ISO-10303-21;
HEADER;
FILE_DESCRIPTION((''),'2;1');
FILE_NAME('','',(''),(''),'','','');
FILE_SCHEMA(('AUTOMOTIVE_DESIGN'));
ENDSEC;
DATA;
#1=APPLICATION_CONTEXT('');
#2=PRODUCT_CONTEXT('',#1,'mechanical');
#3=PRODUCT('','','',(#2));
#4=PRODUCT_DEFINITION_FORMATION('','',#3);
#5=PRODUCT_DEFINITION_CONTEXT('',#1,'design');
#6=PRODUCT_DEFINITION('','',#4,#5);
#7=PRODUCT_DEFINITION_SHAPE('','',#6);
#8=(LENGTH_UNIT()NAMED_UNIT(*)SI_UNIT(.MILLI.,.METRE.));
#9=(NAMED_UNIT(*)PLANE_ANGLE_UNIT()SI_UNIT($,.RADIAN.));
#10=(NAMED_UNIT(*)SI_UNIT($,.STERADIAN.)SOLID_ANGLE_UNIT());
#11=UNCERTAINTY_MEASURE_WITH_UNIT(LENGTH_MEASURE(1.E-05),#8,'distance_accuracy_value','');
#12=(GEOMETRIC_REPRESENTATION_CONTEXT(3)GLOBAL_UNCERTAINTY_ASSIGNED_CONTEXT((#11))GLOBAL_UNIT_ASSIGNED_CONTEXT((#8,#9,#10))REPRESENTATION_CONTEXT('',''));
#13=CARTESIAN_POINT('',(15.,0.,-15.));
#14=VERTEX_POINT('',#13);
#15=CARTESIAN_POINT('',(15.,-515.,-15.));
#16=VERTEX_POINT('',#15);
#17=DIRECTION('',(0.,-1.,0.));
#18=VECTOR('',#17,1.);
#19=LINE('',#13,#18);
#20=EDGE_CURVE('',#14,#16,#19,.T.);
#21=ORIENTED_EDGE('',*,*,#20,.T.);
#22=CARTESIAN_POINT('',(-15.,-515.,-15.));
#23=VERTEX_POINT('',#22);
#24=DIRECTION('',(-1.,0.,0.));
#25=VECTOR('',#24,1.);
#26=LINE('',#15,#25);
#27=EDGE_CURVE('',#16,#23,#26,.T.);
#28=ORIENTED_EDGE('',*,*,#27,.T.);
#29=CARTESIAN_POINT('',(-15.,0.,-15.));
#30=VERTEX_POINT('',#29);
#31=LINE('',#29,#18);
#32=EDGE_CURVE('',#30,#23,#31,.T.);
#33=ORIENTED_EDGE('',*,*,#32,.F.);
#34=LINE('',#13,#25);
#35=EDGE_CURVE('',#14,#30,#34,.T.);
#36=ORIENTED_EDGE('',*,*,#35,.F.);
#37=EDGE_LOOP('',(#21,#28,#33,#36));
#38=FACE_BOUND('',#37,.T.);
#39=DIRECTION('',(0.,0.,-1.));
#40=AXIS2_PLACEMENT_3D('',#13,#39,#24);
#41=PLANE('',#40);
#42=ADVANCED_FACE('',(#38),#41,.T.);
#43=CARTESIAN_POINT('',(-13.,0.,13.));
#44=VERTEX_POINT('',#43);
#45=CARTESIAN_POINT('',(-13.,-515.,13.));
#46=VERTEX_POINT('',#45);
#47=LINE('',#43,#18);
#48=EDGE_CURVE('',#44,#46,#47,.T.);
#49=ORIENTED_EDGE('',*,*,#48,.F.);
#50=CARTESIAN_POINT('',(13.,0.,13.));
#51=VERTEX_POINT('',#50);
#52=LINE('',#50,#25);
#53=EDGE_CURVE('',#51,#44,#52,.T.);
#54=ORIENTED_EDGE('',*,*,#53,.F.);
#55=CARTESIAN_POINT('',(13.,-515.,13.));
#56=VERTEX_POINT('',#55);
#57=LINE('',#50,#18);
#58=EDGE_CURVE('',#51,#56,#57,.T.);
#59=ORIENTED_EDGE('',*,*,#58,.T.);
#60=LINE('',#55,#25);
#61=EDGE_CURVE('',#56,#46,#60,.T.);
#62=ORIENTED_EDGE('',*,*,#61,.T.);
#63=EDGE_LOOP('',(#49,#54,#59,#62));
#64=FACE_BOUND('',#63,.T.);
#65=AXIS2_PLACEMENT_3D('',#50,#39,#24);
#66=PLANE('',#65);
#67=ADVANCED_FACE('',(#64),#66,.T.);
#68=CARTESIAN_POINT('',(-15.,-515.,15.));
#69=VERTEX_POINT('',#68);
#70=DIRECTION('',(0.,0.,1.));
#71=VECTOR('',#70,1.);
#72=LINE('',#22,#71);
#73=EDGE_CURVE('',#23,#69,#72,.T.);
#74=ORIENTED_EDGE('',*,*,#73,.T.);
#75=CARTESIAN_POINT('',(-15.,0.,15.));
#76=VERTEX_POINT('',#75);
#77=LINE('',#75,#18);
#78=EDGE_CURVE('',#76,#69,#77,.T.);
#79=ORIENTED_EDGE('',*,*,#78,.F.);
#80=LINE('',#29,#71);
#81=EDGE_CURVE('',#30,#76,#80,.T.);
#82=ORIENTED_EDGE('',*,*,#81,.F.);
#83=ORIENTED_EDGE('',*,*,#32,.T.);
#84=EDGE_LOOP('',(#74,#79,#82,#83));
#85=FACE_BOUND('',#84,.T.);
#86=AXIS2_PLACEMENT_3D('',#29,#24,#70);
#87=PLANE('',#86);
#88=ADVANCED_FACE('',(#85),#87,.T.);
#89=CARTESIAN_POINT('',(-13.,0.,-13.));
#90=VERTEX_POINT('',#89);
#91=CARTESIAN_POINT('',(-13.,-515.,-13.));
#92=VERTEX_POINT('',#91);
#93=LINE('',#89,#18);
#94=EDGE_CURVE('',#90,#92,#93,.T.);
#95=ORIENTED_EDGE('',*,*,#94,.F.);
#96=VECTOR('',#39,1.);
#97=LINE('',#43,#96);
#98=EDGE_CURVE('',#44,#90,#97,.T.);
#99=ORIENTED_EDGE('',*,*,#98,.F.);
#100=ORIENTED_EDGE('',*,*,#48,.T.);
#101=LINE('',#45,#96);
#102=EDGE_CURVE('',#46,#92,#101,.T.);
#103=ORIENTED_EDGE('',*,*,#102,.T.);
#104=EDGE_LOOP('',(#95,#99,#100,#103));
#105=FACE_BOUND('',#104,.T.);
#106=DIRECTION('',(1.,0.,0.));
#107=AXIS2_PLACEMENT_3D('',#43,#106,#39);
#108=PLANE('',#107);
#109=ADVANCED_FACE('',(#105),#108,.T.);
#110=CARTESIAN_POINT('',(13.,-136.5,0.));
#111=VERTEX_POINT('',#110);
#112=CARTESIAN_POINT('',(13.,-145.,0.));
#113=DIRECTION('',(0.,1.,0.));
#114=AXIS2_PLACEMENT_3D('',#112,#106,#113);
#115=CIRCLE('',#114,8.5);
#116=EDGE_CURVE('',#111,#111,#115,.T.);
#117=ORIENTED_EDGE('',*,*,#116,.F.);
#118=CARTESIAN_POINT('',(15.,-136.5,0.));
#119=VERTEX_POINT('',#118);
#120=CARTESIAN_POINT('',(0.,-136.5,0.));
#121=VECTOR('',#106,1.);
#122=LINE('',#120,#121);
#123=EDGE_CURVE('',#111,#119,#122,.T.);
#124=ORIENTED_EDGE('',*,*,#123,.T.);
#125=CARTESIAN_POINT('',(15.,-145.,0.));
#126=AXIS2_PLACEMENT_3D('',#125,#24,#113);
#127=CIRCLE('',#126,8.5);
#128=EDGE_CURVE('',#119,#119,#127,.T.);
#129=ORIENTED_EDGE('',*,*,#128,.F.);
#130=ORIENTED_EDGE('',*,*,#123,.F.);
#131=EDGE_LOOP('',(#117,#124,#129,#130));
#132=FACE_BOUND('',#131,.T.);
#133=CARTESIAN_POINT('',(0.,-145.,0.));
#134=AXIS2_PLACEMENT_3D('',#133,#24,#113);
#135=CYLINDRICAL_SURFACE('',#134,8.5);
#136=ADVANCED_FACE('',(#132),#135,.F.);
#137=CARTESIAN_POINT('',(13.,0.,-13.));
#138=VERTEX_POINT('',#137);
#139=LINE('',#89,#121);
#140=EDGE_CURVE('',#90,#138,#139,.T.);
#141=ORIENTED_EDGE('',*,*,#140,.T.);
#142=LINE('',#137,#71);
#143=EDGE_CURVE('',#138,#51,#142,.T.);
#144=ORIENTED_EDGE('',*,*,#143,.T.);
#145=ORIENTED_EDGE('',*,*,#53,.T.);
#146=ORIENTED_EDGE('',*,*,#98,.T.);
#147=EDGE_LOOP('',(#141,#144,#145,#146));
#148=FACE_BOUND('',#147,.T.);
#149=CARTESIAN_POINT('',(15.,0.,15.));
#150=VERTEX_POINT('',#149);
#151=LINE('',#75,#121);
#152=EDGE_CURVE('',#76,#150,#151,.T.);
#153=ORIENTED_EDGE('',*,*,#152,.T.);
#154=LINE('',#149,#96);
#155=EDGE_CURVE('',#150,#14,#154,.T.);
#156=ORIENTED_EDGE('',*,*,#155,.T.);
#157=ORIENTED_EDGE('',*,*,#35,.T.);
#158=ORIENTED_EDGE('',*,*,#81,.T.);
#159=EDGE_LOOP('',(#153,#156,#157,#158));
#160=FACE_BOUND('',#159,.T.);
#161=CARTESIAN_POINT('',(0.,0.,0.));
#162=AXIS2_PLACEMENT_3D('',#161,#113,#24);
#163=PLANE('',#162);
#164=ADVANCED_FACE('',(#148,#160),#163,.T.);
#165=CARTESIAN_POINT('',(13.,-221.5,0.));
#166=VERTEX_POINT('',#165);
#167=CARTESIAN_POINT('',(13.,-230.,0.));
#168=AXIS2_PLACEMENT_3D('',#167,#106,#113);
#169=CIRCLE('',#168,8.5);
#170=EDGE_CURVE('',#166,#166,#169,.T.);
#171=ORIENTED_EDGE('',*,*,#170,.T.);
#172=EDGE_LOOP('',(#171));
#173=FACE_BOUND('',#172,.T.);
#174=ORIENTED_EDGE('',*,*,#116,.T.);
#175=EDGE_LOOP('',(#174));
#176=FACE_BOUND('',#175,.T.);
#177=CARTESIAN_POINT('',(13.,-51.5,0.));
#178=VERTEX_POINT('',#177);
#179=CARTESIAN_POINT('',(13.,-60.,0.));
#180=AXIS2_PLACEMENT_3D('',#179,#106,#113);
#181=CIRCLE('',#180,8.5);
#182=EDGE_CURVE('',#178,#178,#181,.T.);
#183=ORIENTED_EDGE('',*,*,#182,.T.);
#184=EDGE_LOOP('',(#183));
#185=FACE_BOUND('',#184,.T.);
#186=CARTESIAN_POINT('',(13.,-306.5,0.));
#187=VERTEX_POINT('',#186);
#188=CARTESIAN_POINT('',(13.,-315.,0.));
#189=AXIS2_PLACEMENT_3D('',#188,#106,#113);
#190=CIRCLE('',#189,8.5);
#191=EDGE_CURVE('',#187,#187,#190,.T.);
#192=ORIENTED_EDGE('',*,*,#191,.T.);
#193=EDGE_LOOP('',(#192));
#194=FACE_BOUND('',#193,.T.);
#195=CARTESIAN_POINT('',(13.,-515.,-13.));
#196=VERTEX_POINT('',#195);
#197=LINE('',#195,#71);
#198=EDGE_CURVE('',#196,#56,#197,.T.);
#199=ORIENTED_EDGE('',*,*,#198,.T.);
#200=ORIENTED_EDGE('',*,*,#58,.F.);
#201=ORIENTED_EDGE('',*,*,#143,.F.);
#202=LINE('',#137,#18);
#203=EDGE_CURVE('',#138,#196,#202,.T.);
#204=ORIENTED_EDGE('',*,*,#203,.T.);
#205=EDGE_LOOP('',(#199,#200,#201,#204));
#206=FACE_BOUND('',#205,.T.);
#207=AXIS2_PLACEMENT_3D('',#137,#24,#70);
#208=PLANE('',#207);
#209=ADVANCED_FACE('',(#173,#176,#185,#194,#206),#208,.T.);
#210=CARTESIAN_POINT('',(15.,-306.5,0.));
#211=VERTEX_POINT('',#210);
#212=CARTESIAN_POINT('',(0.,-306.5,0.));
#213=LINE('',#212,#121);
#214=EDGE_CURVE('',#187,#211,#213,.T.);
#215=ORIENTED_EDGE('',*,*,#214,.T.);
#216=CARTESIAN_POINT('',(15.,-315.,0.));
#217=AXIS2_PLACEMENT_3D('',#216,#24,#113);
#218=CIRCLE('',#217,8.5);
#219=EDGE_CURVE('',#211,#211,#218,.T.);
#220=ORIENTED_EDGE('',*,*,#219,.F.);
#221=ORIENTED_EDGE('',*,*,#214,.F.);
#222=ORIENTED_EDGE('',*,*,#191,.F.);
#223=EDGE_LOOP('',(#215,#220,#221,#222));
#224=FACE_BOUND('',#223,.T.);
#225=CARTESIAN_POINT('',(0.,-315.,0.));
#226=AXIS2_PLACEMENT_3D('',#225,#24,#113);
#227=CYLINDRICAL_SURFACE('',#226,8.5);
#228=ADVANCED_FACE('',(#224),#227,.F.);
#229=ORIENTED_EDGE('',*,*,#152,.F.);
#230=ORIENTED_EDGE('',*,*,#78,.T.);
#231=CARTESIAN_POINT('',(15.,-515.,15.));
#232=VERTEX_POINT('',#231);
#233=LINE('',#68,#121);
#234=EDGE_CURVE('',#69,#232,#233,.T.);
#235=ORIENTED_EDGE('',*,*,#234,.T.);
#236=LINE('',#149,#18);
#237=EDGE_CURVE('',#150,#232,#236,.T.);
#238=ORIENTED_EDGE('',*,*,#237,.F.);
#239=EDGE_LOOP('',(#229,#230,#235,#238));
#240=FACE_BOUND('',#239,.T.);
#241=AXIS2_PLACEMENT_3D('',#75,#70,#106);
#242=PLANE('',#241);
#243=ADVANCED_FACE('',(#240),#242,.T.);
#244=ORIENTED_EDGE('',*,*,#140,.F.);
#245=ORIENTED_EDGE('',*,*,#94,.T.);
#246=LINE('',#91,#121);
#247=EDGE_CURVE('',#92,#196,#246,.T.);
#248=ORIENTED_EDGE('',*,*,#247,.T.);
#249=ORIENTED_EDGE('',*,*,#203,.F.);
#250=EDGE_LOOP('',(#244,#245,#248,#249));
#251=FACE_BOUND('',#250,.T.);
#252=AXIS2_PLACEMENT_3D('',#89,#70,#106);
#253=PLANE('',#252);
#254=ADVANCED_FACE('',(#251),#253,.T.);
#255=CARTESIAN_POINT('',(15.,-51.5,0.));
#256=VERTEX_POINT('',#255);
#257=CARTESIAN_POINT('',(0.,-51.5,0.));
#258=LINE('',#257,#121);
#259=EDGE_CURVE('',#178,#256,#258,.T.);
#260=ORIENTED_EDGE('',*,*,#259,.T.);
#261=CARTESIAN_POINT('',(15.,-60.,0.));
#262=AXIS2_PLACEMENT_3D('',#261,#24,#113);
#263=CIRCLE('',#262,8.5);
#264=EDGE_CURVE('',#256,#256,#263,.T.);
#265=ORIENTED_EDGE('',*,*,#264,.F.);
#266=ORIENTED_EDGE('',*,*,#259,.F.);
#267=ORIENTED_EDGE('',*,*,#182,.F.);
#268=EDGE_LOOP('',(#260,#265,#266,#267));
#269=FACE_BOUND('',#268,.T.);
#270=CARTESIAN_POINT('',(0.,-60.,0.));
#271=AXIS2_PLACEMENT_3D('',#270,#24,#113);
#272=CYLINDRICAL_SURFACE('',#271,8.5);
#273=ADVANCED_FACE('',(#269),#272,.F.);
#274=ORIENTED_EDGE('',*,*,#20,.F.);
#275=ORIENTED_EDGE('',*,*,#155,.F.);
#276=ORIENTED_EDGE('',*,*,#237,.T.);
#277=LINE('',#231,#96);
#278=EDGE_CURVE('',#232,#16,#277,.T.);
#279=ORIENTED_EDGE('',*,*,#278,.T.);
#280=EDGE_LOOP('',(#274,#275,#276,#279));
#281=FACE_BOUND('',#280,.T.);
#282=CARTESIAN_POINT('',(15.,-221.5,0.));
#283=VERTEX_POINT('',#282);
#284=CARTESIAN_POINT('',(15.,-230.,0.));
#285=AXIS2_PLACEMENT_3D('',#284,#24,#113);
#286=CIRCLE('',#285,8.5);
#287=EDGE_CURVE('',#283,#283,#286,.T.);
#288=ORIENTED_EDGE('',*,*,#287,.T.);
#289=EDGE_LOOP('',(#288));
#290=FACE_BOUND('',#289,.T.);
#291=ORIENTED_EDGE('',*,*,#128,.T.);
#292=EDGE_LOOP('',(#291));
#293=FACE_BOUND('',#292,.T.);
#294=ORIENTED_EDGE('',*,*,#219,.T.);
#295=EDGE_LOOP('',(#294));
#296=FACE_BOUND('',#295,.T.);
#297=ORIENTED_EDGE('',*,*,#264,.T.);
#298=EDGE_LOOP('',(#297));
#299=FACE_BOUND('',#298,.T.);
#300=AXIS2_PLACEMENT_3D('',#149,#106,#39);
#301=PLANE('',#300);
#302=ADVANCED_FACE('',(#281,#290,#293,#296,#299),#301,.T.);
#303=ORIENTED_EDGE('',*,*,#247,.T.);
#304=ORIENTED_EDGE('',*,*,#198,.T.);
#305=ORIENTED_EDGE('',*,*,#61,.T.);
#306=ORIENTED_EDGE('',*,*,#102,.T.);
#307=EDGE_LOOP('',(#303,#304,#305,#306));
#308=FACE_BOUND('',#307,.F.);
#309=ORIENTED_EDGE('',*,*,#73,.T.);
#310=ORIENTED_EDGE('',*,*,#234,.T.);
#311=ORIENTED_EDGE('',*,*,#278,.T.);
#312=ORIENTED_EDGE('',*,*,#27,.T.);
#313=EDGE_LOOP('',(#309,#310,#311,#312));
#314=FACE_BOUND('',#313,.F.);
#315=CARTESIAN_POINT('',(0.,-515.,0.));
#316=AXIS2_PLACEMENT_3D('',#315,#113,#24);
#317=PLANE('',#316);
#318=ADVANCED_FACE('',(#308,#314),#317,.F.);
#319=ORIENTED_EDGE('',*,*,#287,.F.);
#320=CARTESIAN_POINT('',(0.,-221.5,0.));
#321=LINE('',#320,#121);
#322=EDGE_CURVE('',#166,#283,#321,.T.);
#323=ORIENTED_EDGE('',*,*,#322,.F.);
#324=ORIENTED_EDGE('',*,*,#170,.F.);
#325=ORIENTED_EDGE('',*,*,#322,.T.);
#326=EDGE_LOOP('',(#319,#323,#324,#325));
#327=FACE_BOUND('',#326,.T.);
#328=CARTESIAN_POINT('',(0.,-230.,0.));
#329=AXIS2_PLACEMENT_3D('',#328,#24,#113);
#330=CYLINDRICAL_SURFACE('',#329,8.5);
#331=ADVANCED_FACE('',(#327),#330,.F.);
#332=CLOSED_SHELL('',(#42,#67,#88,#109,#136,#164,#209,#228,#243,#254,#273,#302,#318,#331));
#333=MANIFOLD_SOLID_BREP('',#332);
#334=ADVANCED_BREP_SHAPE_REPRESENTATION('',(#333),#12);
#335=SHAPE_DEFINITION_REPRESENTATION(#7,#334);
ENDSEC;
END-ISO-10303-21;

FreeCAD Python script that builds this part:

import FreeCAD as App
import Part
import Sketcher

V = App.Vector
Q = App.Units.Quantity

doc = App.newDocument("Part")
body = doc.addObject("PartDesign::Body", "Body")

# Sketch on XZ plane
sketch1 = body.newObject("Sketcher::SketchObject", "Sketch")
sketch1.AttachmentSupport = (doc.getObject("XZ_Plane"), [""])
sketch1.MapMode = "FlatFace"
sketch1.addGeometry(Part.LineSegment(V(-15, -15, 0), V(-15, 15, 0)), False)
sketch1.addGeometry(Part.LineSegment(V(-15, 15, 0), V(15, 15, 0)), False)
sketch1.addGeometry(Part.LineSegment(V(15, 15, 0), V(15, -15, 0)), False)
sketch1.addGeometry(Part.LineSegment(V(15, -15, 0), V(-15, -15, 0)), False)
sketch1.addGeometry(Part.LineSegment(V(13, -13, 0), V(13, 13, 0)), False)
sketch1.addGeometry(Part.LineSegment(V(13, 13, 0), V(-13, 13, 0)), False)
sketch1.addGeometry(Part.LineSegment(V(-13, 13, 0), V(-13, -13, 0)), False)
sketch1.addGeometry(Part.LineSegment(V(-13, -13, 0), V(13, -13, 0)), False)
sketch1.addConstraint(Sketcher.Constraint("Coincident", 0, 2, 1, 1))
sketch1.addConstraint(Sketcher.Constraint("Coincident", 1, 2, 2, 1))
sketch1.addConstraint(Sketcher.Constraint("Coincident", 2, 2, 3, 1))
sketch1.addConstraint(Sketcher.Constraint("Coincident", 3, 2, 0, 1))
sketch1.addConstraint(Sketcher.Constraint("Coincident", 4, 2, 5, 1))
sketch1.addConstraint(Sketcher.Constraint("Coincident", 5, 2, 6, 1))
sketch1.addConstraint(Sketcher.Constraint("Coincident", 6, 2, 7, 1))
sketch1.addConstraint(Sketcher.Constraint("Coincident", 7, 2, 4, 1))
sketch1.addConstraint(Sketcher.Constraint("Vertical", 0))
sketch1.addConstraint(Sketcher.Constraint("Horizontal", 1))
sketch1.addConstraint(Sketcher.Constraint("Vertical", 2))
sketch1.addConstraint(Sketcher.Constraint("Horizontal", 3))
sketch1.addConstraint(Sketcher.Constraint("Vertical", 4))
sketch1.addConstraint(Sketcher.Constraint("Horizontal", 5))
sketch1.addConstraint(Sketcher.Constraint("Vertical", 6))
sketch1.addConstraint(Sketcher.Constraint("Horizontal", 7))
sketch1.addConstraint(Sketcher.Constraint("Symmetric", 0, 2, 2, 2, -1, 1))
sketch1.addConstraint(Sketcher.Constraint("Symmetric", 4, 2, 6, 2, -1, 1))
sketch1.addConstraint(Sketcher.Constraint("Equal", 3, 0))
sketch1.addConstraint(Sketcher.Constraint("Equal", 7, 4))
sketch1.addConstraint(Sketcher.Constraint("DistanceX", 1, 1, 1, 2, Q("30 mm")))
sketch1.addConstraint(Sketcher.Constraint("DistanceX", 4, 2, 1, 2, Q("2 mm")))
pad1 = body.newObject("PartDesign::Pad", "Pad")
pad1.Profile = sketch1
pad1.Length = 515

# Sketch on YZ plane
sketch2 = body.newObject("Sketcher::SketchObject", "Sketch001")
sketch2.AttachmentSupport = (doc.getObject("YZ_Plane"), [""])
sketch2.MapMode = "FlatFace"
sketch2.addGeometry(Part.Circle(V(-60, 0, 0), V(0, 0, 1), 8), False)
sketch2.addConstraint(Sketcher.Constraint("PointOnObject", 0, 3, -1))
sketch2.addConstraint(Sketcher.Constraint("Diameter", 0, Q("17 mm")))
sketch2.addConstraint(Sketcher.Constraint("DistanceX", 0, 3, -1, 1, Q("60 mm")))
pocket1 = body.newObject("PartDesign::Pocket", "Pocket")
pocket1.Profile = sketch2
pocket1.Type = "ThroughAll"
pocket1.Reversed = True
doc.recompute()

linearpattern = body.newObject("PartDesign::LinearPattern", "LinearPattern")
linearpattern.Originals = [pocket1]
linearpattern.Direction = (doc.getObject("Y_Axis"), [""])
linearpattern.Mode = "offset"
linearpattern.Offset = 85
linearpattern.Occurrences = 4
linearpattern.Reversed = True
body.Tip = linearpattern

doc.recompute()
